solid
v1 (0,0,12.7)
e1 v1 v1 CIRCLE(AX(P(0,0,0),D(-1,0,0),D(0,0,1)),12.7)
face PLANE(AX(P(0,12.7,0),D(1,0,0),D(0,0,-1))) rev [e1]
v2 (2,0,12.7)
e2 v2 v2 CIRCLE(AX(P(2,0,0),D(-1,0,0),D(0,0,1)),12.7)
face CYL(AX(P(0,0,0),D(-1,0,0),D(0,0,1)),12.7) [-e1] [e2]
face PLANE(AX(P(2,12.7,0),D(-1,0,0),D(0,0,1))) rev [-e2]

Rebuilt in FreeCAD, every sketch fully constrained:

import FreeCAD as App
import Part
import Sketcher

V = App.Vector
Q = App.Units.Quantity


def add_polygon(sketch, points):
    """Adds a closed chain of lines whose ends are joined by coincident constraints."""
    first, n = sketch.GeometryCount, len(points)
    for a, b in zip(points, points[1:] + points[:1]):
        sketch.addGeometry(Part.LineSegment(App.Vector(*a, 0), App.Vector(*b, 0)), False)
    for i in range(n):
        sketch.addConstraint(Sketcher.Constraint("Coincident", first + i, 2, first + (i + 1) % n, 1))

doc = App.newDocument("Part")
body = doc.addObject("PartDesign::Body", "Body")

# Sketch on XY plane
sketch1 = body.newObject("Sketcher::SketchObject", "Sketch")
sketch1.AttachmentSupport = (doc.getObject("XY_Plane"), [""])
sketch1.MapMode = "FlatFace"
add_polygon(sketch1, [(0, 12.7), (0, 0), (2, 0), (2, 12.7)])  # lines 0-3
sketch1.addConstraint(Sketcher.Constraint("Vertical", 0))
sketch1.addConstraint(Sketcher.Constraint("Horizontal", 1))
sketch1.addConstraint(Sketcher.Constraint("Vertical", 2))
sketch1.addConstraint(Sketcher.Constraint("Horizontal", 3))
sketch1.addConstraint(Sketcher.Constraint("Coincident", 0, 2, -1, 1))
sketch1.addConstraint(Sketcher.Constraint("DistanceX", 1, 1, 1, 2, Q("2 mm")))
sketch1.addConstraint(Sketcher.Constraint("DistanceY", 0, 2, 0, 1, Q("12.7 mm")))
revolution = body.newObject("PartDesign::Revolution", "Revolution")
revolution.Profile = sketch1
revolution.ReferenceAxis = (sketch1, ["H_Axis"])
revolution.Angle = 360

doc.recompute()
